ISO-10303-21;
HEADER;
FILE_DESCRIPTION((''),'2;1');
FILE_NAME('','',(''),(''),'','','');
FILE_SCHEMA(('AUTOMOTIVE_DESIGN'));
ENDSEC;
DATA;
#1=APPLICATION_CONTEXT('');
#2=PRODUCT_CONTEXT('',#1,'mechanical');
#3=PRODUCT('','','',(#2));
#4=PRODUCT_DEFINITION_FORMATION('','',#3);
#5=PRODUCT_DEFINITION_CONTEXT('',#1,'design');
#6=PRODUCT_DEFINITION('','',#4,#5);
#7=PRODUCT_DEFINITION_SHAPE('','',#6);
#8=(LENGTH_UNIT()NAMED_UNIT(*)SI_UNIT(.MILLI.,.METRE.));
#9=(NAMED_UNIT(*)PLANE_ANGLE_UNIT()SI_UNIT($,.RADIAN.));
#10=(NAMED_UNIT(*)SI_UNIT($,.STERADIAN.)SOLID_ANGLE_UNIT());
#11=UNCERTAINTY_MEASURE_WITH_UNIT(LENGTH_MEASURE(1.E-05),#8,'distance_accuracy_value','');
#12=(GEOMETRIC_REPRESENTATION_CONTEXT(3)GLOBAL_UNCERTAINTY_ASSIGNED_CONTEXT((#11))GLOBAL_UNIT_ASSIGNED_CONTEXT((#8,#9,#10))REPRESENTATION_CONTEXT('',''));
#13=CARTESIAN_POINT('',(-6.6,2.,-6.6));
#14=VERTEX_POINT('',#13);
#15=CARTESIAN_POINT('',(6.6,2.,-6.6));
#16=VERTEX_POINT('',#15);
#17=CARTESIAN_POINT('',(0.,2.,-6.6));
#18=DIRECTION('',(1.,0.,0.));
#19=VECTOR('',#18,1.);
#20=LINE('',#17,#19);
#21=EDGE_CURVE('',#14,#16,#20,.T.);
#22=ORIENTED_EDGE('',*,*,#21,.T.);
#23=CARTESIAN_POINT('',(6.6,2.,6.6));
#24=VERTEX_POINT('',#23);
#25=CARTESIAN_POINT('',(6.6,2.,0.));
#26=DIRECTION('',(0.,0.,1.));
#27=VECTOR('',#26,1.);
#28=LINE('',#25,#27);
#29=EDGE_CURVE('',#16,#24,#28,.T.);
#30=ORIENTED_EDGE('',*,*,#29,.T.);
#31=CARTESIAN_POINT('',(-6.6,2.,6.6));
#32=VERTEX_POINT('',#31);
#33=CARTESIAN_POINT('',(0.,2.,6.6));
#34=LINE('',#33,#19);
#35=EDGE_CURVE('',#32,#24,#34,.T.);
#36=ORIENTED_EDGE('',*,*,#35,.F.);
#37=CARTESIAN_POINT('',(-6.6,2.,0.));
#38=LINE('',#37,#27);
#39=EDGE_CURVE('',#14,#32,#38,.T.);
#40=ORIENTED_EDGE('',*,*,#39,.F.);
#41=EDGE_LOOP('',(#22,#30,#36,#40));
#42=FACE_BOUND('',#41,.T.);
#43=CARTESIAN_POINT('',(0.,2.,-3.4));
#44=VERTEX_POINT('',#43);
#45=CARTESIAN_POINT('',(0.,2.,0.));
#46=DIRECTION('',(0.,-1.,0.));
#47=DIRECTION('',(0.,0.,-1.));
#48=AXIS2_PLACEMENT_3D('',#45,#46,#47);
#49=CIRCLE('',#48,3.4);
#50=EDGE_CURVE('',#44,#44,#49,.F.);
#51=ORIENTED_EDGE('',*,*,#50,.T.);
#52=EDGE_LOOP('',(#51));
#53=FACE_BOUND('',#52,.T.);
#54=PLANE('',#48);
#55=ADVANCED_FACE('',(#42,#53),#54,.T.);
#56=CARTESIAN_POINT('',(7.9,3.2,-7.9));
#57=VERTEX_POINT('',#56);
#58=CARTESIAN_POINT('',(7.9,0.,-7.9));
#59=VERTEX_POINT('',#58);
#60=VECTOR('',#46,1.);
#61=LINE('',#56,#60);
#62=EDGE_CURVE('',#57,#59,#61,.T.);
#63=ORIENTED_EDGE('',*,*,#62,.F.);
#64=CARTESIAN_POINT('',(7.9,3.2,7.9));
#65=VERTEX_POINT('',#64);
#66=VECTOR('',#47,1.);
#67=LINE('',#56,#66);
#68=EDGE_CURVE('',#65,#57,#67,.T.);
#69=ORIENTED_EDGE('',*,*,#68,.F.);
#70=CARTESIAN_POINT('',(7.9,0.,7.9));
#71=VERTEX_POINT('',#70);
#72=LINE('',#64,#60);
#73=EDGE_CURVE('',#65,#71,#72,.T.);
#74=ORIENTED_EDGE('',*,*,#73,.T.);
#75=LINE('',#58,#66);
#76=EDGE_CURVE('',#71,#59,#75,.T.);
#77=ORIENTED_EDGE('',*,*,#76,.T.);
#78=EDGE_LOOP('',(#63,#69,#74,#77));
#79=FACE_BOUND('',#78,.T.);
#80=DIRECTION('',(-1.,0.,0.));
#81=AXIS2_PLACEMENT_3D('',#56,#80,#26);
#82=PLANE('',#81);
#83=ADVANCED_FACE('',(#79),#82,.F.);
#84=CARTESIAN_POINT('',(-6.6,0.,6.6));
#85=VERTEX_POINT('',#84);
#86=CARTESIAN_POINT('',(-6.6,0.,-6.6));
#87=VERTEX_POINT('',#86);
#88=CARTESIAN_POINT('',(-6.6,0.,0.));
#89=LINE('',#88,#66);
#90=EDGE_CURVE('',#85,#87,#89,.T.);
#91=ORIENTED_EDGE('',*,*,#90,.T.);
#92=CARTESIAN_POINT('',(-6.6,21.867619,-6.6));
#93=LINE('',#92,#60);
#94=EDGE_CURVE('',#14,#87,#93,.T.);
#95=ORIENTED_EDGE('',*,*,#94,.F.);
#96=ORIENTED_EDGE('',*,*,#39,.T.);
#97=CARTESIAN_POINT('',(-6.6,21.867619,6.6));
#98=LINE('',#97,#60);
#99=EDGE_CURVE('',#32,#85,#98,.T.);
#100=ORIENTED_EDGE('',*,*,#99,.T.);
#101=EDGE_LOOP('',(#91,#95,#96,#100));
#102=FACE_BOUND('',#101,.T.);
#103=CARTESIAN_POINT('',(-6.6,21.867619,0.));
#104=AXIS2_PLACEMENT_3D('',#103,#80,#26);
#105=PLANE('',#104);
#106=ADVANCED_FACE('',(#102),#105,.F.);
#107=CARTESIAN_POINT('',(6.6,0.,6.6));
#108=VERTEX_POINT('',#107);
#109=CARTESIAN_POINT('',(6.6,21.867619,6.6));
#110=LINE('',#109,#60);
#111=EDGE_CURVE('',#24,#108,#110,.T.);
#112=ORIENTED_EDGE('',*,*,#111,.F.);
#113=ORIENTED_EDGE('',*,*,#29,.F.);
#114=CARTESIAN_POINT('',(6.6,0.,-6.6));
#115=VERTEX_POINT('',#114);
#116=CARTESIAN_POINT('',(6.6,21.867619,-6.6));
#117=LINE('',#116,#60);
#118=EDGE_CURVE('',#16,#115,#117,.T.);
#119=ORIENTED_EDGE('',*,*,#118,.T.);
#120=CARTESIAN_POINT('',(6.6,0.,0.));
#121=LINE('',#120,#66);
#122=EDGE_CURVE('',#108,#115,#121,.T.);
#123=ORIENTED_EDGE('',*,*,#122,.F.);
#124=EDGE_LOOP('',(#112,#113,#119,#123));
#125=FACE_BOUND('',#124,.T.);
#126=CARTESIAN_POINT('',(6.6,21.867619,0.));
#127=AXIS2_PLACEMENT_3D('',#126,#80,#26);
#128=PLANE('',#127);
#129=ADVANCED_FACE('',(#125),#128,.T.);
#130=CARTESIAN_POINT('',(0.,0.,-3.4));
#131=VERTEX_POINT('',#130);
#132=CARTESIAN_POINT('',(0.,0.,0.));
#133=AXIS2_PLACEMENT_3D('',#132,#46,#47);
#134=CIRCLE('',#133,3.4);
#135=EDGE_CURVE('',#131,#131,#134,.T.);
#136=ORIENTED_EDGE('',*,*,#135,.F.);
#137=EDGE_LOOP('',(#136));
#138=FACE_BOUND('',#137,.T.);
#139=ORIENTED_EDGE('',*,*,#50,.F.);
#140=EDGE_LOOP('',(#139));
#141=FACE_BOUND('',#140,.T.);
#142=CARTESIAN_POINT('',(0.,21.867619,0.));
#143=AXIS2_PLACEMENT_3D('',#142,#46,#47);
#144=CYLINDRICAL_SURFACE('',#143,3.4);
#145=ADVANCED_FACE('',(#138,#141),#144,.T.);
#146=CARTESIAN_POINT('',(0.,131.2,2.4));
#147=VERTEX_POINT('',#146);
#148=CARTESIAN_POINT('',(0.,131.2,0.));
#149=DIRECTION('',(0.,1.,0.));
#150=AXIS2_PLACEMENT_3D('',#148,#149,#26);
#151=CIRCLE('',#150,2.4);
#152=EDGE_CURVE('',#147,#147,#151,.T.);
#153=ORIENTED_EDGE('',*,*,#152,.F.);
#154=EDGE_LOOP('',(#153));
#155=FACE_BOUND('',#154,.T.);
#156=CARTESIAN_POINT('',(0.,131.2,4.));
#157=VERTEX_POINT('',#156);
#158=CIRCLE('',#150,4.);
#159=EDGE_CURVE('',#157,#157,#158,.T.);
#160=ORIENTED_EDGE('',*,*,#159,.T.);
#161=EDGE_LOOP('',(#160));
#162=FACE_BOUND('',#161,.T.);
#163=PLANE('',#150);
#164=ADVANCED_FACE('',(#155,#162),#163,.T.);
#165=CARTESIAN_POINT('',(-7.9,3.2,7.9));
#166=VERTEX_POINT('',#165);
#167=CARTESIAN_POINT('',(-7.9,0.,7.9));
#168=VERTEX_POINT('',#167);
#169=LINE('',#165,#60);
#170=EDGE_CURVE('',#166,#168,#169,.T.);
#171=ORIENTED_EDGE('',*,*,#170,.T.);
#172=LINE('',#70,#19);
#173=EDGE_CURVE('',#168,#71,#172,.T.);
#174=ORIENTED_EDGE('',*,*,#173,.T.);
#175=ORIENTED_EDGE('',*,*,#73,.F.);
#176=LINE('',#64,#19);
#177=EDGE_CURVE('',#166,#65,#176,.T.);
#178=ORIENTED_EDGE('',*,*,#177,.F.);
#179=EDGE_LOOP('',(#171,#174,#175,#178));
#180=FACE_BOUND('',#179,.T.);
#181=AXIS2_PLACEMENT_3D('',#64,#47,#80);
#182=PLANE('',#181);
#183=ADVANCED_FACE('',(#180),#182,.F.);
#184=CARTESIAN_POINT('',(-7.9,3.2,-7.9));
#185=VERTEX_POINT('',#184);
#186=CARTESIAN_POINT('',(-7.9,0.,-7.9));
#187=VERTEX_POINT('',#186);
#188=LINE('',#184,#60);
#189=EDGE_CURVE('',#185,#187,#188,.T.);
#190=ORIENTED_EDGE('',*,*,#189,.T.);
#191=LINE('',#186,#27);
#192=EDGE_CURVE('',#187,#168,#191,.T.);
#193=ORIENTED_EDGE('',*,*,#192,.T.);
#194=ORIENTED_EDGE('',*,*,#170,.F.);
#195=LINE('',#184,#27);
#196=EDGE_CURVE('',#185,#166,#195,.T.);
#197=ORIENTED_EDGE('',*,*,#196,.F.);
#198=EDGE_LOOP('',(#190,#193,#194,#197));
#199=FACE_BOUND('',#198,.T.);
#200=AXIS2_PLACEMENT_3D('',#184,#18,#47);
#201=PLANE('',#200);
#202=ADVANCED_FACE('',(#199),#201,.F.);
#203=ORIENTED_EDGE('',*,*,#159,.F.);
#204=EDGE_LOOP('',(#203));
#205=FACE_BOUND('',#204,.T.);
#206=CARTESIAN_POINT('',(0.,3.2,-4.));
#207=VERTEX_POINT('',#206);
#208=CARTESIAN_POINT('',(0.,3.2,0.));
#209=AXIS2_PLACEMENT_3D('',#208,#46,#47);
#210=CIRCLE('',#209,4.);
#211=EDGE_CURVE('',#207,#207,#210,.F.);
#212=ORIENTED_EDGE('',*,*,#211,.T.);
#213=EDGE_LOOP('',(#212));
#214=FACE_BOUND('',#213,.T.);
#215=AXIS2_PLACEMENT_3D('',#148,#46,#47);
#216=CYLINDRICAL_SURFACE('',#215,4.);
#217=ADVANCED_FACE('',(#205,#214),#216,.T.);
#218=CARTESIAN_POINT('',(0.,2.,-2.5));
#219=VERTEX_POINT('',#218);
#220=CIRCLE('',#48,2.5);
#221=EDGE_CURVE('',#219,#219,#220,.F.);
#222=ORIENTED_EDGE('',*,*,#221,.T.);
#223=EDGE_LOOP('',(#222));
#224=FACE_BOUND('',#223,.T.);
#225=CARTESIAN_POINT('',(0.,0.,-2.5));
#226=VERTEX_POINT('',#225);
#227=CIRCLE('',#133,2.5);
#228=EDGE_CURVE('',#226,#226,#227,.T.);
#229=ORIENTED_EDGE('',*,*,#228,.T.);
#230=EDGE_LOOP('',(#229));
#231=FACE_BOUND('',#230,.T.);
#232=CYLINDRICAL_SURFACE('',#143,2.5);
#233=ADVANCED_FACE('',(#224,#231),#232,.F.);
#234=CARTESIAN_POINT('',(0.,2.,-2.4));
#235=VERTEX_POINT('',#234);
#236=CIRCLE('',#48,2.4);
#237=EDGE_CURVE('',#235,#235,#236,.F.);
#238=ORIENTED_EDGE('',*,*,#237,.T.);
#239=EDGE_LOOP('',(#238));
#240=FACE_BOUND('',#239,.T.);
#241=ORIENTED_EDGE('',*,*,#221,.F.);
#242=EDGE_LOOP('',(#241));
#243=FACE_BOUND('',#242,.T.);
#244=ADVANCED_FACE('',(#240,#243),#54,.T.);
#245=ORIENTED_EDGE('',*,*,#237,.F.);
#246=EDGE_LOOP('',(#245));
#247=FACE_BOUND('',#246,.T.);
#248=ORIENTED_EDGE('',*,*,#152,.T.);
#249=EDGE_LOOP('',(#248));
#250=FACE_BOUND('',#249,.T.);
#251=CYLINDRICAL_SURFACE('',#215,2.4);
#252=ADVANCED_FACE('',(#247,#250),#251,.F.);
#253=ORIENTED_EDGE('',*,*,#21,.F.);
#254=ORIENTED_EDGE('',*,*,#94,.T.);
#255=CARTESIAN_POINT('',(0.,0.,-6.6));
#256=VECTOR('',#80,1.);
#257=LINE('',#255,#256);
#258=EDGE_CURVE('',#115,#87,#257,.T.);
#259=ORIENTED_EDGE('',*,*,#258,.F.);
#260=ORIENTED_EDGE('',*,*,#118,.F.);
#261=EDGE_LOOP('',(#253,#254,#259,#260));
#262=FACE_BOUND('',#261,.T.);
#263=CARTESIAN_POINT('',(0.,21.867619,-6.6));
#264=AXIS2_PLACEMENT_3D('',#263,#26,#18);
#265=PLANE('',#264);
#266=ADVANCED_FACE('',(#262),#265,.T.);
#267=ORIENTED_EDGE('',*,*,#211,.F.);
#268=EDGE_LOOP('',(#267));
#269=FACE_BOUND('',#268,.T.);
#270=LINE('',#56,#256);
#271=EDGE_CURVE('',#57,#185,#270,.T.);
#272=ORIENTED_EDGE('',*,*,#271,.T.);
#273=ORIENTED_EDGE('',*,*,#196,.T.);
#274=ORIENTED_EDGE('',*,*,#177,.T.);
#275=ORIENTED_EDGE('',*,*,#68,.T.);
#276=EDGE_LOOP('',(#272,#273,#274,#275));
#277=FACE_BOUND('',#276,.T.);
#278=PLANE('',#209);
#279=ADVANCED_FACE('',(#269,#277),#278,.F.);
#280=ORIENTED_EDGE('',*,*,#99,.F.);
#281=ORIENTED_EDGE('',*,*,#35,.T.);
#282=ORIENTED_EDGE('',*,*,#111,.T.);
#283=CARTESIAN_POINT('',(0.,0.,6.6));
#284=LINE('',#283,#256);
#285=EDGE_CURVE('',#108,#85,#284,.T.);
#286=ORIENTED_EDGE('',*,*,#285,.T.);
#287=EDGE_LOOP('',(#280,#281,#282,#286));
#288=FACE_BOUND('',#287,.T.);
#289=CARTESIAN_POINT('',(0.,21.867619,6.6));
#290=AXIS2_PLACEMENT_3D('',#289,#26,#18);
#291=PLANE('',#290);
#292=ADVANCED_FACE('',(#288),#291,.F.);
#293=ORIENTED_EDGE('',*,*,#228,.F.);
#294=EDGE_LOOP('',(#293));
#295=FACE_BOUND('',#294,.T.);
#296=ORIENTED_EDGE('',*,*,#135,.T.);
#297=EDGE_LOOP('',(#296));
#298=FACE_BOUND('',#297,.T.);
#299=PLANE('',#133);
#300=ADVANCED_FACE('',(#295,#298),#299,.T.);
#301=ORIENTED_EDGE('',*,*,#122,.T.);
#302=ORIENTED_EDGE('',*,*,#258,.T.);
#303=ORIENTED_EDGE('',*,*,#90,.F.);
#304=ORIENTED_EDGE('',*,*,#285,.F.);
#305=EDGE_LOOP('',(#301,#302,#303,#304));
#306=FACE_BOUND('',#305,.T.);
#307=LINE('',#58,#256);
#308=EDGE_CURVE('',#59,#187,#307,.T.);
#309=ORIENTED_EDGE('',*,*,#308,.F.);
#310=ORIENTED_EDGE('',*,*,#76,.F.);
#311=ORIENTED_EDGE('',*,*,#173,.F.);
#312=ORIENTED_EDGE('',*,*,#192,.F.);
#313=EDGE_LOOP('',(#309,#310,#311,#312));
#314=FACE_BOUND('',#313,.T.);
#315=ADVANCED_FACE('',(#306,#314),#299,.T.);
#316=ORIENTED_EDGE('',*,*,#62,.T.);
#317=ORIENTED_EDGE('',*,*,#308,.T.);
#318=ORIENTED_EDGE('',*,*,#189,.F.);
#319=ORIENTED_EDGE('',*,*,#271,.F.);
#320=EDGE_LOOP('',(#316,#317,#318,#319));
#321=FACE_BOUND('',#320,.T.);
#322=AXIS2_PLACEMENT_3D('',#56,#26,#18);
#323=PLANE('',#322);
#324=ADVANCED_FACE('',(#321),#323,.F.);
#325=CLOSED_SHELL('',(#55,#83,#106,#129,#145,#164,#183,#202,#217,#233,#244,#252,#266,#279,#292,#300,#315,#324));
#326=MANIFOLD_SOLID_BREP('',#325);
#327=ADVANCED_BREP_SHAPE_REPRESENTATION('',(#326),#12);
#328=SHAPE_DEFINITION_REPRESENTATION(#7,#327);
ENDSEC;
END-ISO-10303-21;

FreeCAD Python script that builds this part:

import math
import FreeCAD as App
import Part
import Sketcher

V = App.Vector
Q = App.Units.Quantity


def add_polygon(sketch, points):
    """Adds a closed chain of lines whose ends are joined by coincident constraints."""
    first, n = sketch.GeometryCount, len(points)
    for a, b in zip(points, points[1:] + points[:1]):
        sketch.addGeometry(Part.LineSegment(App.Vector(*a, 0), App.Vector(*b, 0)), False)
    for i in range(n):
        sketch.addConstraint(Sketcher.Constraint("Coincident", first + i, 2, first + (i + 1) % n, 1))

doc = App.newDocument("Part")
params = doc.addObject("Spreadsheet::Sheet", "Params")
for row, (alias, value) in enumerate([
    ("sketch1_width", "15.8 mm"),
    ("pad1_length", "3.2 mm"),
    ("sketch2_radius", "3.4 mm"),
    ("sketch2_radius2", "2.5 mm"),
    ("sketch2_width", "13.2 mm"),
    ("pocket1_length", "2 mm"),
    ("sketch3_diameter", "8 mm"),
    ("sketch3_diameter2", "4.8 mm"),
    ("pad2_length", "128 mm"),
    ("sketch4_diameter", "4.8 mm"),
], start=1):
    params.set(f"A{row}", alias)
    params.set(f"B{row}", "=" + value)
    params.setAlias(f"B{row}", alias)

body = doc.addObject("PartDesign::Body", "Body")

# Sketch on XZ plane
sketch1 = body.newObject("Sketcher::SketchObject", "Sketch")
sketch1.AttachmentSupport = (doc.getObject("XZ_Plane"), [""])
sketch1.MapMode = "FlatFace"
add_polygon(sketch1, [(-7.9, -7.9), (-7.9, 7.9), (7.9, 7.9), (7.9, -7.9)])  # lines 0-3
sketch1.addConstraint([
    Sketcher.Constraint("Vertical", 0),
    Sketcher.Constraint("Horizontal", 1),
    Sketcher.Constraint("Vertical", 2),
    Sketcher.Constraint("Horizontal", 3),
    Sketcher.Constraint("Symmetric", 0, 2, 2, 2, -1, 1),
    Sketcher.Constraint("Equal", 3, 0),
    Sketcher.Constraint("DistanceX", 1, 1, 1, 2, Q("15.8 mm")),
])
sketch1.setExpression("Constraints[10]", "Params.sketch1_width")
pad1 = body.newObject("PartDesign::Pad", "Pad")
pad1.Profile = sketch1
pad1.setExpression("Length", "Params.pad1_length")
pad1.Reversed = True

# Sketch on XZ plane
sketch2 = body.newObject("Sketcher::SketchObject", "Sketch001")
sketch2.AttachmentSupport = (doc.getObject("XZ_Plane"), [""])
sketch2.MapMode = "FlatFace"
add_polygon(sketch2, [(6.6, -6.6), (6.6, 6.6), (-6.6, 6.6), (-6.6, -6.6)])  # lines 0-3
sketch2.addGeometry(Part.ArcOfCircle(Part.Circle(V(0, 0, 0), V(0, 0, 1), 3.4), math.radians(0), math.radians(248.429422)), False)  # 4
sketch2.addGeometry(Part.ArcOfCircle(Part.Circle(V(0, 0, 0), V(0, 0, 1), 3.4), math.radians(-68.429422), math.radians(0)), False)  # 5
sketch2.addGeometry(Part.ArcOfCircle(Part.Circle(V(0, 0, 0), V(0, 0, 1), 3.4), math.radians(-111.570578), math.radians(-68.429422)), False)  # 6
sketch2.addGeometry(Part.ArcOfCircle(Part.Circle(V(0, 0, 0), V(0, 0, 1), 2.5), math.radians(-120), math.radians(-60)), False)  # 7
sketch2.addGeometry(Part.ArcOfCircle(Part.Circle(V(0, 0, 0), V(0, 0, 1), 2.5), math.radians(-60), math.radians(0)), False)  # 8
sketch2.addGeometry(Part.ArcOfCircle(Part.Circle(V(0, 0, 0), V(0, 0, 1), 2.5), math.radians(0), math.radians(240)), False)  # 9
sketch2.addConstraint([
    Sketcher.Constraint("Tangent", 4, 1, 5, 2),
    Sketcher.Constraint("Tangent", 5, 1, 6, 2),
    Sketcher.Constraint("Tangent", 6, 1, 4, 2),
    Sketcher.Constraint("Tangent", 7, 2, 8, 1),
    Sketcher.Constraint("Tangent", 8, 2, 9, 1),
    Sketcher.Constraint("Tangent", 9, 2, 7, 1),
    Sketcher.Constraint("Vertical", 0),
    Sketcher.Constraint("Horizontal", 1),
    Sketcher.Constraint("Vertical", 2),
    Sketcher.Constraint("Horizontal", 3),
    Sketcher.Constraint("Coincident", 4, 3, -1, 1),
    Sketcher.Constraint("Coincident", 7, 3, -1, 1),
    Sketcher.Constraint("Symmetric", 0, 2, 2, 2, -1, 1),
    Sketcher.Constraint("PointOnObject", 4, 1, -1),
    Sketcher.Constraint("PointOnObject", 8, 2, -1),
    Sketcher.Constraint("Horizontal", 5, 1, 6, 1),
    Sketcher.Constraint("Horizontal", 7, 2, 9, 2),
    Sketcher.Constraint("Vertical", 5, 1, 7, 2),
    Sketcher.Constraint("Equal", 3, 0),
    Sketcher.Constraint("Radius", 4, Q("3.4 mm")),
    Sketcher.Constraint("Radius", 7, Q("2.5 mm")),
    Sketcher.Constraint("DistanceX", 1, 2, 1, 1, Q("13.2 mm")),
    Sketcher.Constraint("DistanceX", 6, 1, 5, 1, Q("2.5 mm")),
])
sketch2.setExpression("Constraints[23]", "Params.sketch2_radius")
sketch2.setExpression("Constraints[24]", "Params.sketch2_radius2")
sketch2.setExpression("Constraints[25]", "Params.sketch2_width")
pocket1 = body.newObject("PartDesign::Pocket", "Pocket")
pocket1.Profile = sketch2
pocket1.setExpression("Length", "Params.pocket1_length")

# Sketch on XZ plane
sketch3 = body.newObject("Sketcher::SketchObject", "Sketch002")
sketch3.AttachmentSupport = (doc.getObject("XZ_Plane"), [""])
sketch3.MapMode = "FlatFace"
sketch3.AttachmentOffset = App.Placement(V(0, 0, -3.2), App.Rotation())
sketch3.addGeometry([
    Part.Circle(V(0, 0, 0), V(0, 0, 1), 4),
    Part.Circle(V(0, 0, 0), V(0, 0, 1), 2.4),
], False)
sketch3.addConstraint([
    Sketcher.Constraint("Coincident", 0, 3, -1, 1),
    Sketcher.Constraint("Coincident", 1, 3, -1, 1),
    Sketcher.Constraint("Diameter", 0, Q("8 mm")),
    Sketcher.Constraint("Diameter", 1, Q("4.8 mm")),
])
sketch3.setExpression("Constraints[2]", "Params.sketch3_diameter")
sketch3.setExpression("Constraints[3]", "Params.sketch3_diameter2")
pad2 = body.newObject("PartDesign::Pad", "Pad001")
pad2.Profile = sketch3
pad2.setExpression("Length", "Params.pad2_length")
pad2.Reversed = True

# Sketch on XZ plane
sketch4 = body.newObject("Sketcher::SketchObject", "Sketch003")
sketch4.AttachmentSupport = (doc.getObject("XZ_Plane"), [""])
sketch4.MapMode = "FlatFace"
sketch4.AttachmentOffset = App.Placement(V(0, 0, -3.2), App.Rotation())
sketch4.addGeometry(Part.Circle(V(0, 0, 0), V(0, 0, 1), 2.4), False)
sketch4.addConstraint([
    Sketcher.Constraint("Coincident", 0, 3, -1, 1),
    Sketcher.Constraint("Diameter", 0, Q("4.8 mm")),
])
sketch4.setExpression("Constraints[1]", "Params.sketch4_diameter")
pocket2 = body.newObject("PartDesign::Pocket", "Pocket001")
pocket2.Profile = sketch4
pocket2.Type = "UpToFirst"
pocket2.Reversed = True

doc.recompute()
